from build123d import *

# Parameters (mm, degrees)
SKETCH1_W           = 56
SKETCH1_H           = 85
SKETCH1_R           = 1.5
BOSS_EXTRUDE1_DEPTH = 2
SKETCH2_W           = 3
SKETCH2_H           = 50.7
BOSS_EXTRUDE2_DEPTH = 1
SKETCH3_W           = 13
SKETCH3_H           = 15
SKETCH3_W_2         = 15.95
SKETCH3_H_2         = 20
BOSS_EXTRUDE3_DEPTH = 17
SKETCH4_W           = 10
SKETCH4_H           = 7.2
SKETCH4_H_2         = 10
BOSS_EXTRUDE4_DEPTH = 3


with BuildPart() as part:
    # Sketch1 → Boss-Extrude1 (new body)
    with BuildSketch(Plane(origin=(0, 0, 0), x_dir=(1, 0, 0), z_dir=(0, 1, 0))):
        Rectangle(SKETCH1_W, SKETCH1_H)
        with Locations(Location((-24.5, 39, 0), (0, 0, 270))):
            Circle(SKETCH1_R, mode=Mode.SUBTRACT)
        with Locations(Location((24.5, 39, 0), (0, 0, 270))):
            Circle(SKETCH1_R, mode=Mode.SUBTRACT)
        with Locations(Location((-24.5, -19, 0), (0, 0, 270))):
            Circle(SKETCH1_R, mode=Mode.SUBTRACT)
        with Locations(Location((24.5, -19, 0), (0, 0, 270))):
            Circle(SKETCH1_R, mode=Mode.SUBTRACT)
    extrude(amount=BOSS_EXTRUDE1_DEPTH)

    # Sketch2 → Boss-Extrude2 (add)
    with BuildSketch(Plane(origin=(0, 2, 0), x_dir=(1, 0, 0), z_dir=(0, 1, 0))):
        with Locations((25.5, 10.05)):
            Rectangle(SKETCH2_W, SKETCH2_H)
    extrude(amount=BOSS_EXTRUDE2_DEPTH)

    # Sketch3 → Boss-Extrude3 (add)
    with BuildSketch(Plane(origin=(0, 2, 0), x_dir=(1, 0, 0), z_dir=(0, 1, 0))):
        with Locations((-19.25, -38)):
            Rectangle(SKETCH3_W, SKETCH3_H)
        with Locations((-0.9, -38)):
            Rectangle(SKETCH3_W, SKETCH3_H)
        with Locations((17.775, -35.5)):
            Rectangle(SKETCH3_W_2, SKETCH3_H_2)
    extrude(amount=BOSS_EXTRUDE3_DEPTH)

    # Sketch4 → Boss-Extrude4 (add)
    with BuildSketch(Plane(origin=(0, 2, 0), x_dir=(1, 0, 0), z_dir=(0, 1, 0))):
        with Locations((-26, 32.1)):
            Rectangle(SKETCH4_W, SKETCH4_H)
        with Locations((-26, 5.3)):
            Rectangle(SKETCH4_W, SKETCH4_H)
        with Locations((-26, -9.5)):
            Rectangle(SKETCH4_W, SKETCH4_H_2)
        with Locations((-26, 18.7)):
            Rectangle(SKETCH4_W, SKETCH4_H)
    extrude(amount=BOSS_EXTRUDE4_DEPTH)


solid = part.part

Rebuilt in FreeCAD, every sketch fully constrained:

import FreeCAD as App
import Part
import Sketcher
Q = App.Units.Quantity


def add_polygon(sketch, points):
    """Adds a closed chain of lines whose ends are joined by coincident constraints."""
    first, n = sketch.GeometryCount, len(points)
    for a, b in zip(points, points[1:] + points[:1]):
        sketch.addGeometry(Part.LineSegment(App.Vector(*a, 0), App.Vector(*b, 0)), False)
    for i in range(n):
        sketch.addConstraint(Sketcher.Constraint("Coincident", first + i, 2, first + (i + 1) % n, 1))

doc = App.newDocument("Part")
body = doc.addObject("PartDesign::Body", "Body")

# Sketch on XZ plane
sketch1 = body.newObject("Sketcher::SketchObject", "Sketch")
sketch1.AttachmentSupport = (doc.getObject("XZ_Plane"), [""])
sketch1.MapMode = "FlatFace"
add_polygon(sketch1, [(-28, -42.5), (-28, 42.5), (28, 42.5), (28, -42.5)])  # lines 0-3
sketch1.addGeometry(Part.Circle(App.Vector(-24.5, 19, 0), App.Vector(0, 0, 1), 1.5), False)  # 4
sketch1.addGeometry(Part.Circle(App.Vector(24.5, 19, 0), App.Vector(0, 0, 1), 1.5), False)  # 5
sketch1.addGeometry(Part.Circle(App.Vector(-24.5, -39, 0), App.Vector(0, 0, 1), 1.5), False)  # 6
sketch1.addGeometry(Part.Circle(App.Vector(24.5, -39, 0), App.Vector(0, 0, 1), 1.5), False)  # 7
sketch1.addConstraint([
    Sketcher.Constraint("Vertical", 0),
    Sketcher.Constraint("Horizontal", 1),
    Sketcher.Constraint("Vertical", 2),
    Sketcher.Constraint("Horizontal", 3),
    Sketcher.Constraint("Equal", 4, 5),
    Sketcher.Constraint("Equal", 5, 6),
    Sketcher.Constraint("Equal", 6, 7),
    Sketcher.Constraint("Symmetric", 0, 2, 2, 2, -1, 1),
    Sketcher.Constraint("Symmetric", 4, 3, 5, 3, -2),
    Sketcher.Constraint("Symmetric", 6, 3, 7, 3, -2),
    Sketcher.Constraint("Vertical", 4, 3, 6, 3),
    Sketcher.Constraint("Diameter", 4, Q("3 mm")),
    Sketcher.Constraint("DistanceX", 1, 1, 1, 2, Q("56 mm")),
    Sketcher.Constraint("DistanceY", 0, 1, 0, 2, Q("85 mm")),
    Sketcher.Constraint("DistanceY", -1, 1, 4, 3, Q("19 mm")),
    Sketcher.Constraint("DistanceY", 6, 3, -1, 1, Q("39 mm")),
    Sketcher.Constraint("DistanceX", 4, 3, 5, 3, Q("49 mm")),
])
pad1 = body.newObject("PartDesign::Pad", "Pad")
pad1.Profile = sketch1
pad1.Length = 2
pad1.Reversed = True

# Sketch on XZ plane
sketch2 = body.newObject("Sketcher::SketchObject", "Sketch001")
sketch2.AttachmentSupport = (doc.getObject("XZ_Plane"), [""])
sketch2.MapMode = "FlatFace"
sketch2.AttachmentOffset = App.Placement(App.Vector(0, 0, -2), App.Rotation())
add_polygon(sketch2, [(24, -35.4), (24, 15.3), (27, 15.3), (27, -35.4)])  # lines 0-3
sketch2.addConstraint([
    Sketcher.Constraint("Vertical", 0),
    Sketcher.Constraint("Horizontal", 1),
    Sketcher.Constraint("Vertical", 2),
    Sketcher.Constraint("Horizontal", 3),
    Sketcher.Constraint("DistanceX", 1, 1, 1, 2, Q("3 mm")),
    Sketcher.Constraint("DistanceY", 0, 1, 0, 2, Q("50.7 mm")),
    Sketcher.Constraint("DistanceX", -1, 1, 0, 2, Q("24 mm")),
    Sketcher.Constraint("DistanceY", -1, 1, 0, 2, Q("15.3 mm")),
])
pad2 = body.newObject("PartDesign::Pad", "Pad001")
pad2.Profile = sketch2
pad2.Length = 1
pad2.Reversed = True

# Sketch on XZ plane
sketch3 = body.newObject("Sketcher::SketchObject", "Sketch002")
sketch3.AttachmentSupport = (doc.getObject("XZ_Plane"), [""])
sketch3.MapMode = "FlatFace"
sketch3.AttachmentOffset = App.Placement(App.Vector(0, 0, -2), App.Rotation())
add_polygon(sketch3, [(-26, 30), (-26, 46), (-13, 46), (-13, 30)])  # lines 0-3
add_polygon(sketch3, [(-7, 30), (-7, 46), (6, 46), (6, 30)])  # lines 4-7
add_polygon(sketch3, [(10, 26), (10, 46), (26, 46), (26, 26)])  # lines 8-11
sketch3.addConstraint([
    Sketcher.Constraint("Vertical", 0),
    Sketcher.Constraint("Horizontal", 1),
    Sketcher.Constraint("Vertical", 2),
    Sketcher.Constraint("Horizontal", 3),
    Sketcher.Constraint("Vertical", 4),
    Sketcher.Constraint("Horizontal", 5),
    Sketcher.Constraint("Vertical", 6),
    Sketcher.Constraint("Horizontal", 7),
    Sketcher.Constraint("Vertical", 8),
    Sketcher.Constraint("Horizontal", 9),
    Sketcher.Constraint("Vertical", 10),
    Sketcher.Constraint("Horizontal", 11),
    Sketcher.Constraint("Symmetric", 0, 2, 9, 2, -2),
    Sketcher.Constraint("Horizontal", 1, 2, 4, 2),
    Sketcher.Constraint("Horizontal", 3, 2, 6, 2),
    Sketcher.Constraint("Equal", 3, 5),
    Sketcher.Constraint("DistanceX", 1, 1, 1, 2, Q("13 mm")),
    Sketcher.Constraint("DistanceY", 0, 1, 0, 2, Q("15 mm")),
    Sketcher.Constraint("DistanceY", 8, 1, 8, 2, Q("20 mm")),
    Sketcher.Constraint("DistanceX", 9, 1, 9, 2, Q("15.95 mm")),
    Sketcher.Constraint("DistanceY", -1, 1, 0, 2, Q("45.5 mm")),
    Sketcher.Constraint("DistanceX", 4, 2, -1, 1, Q("7.4 mm")),
    Sketcher.Constraint("DistanceX", -1, 1, 8, 2, Q("9.8 mm")),
])
pad3 = body.newObject("PartDesign::Pad", "Pad002")
pad3.Profile = sketch3
pad3.Length = 17
pad3.Reversed = True

# Sketch on XZ plane
sketch4 = body.newObject("Sketcher::SketchObject", "Sketch003")
sketch4.AttachmentSupport = (doc.getObject("XZ_Plane"), [""])
sketch4.MapMode = "FlatFace"
sketch4.AttachmentOffset = App.Placement(App.Vector(0, 0, -2), App.Rotation())
add_polygon(sketch4, [(-31, -36), (-31, -28), (-21, -28), (-21, -36)])  # lines 0-3
add_polygon(sketch4, [(-31, -9), (-31, -2), (-21, -2), (-21, -9)])  # lines 4-7
add_polygon(sketch4, [(-31, 4), (-31, 14), (-21, 14), (-21, 4)])  # lines 8-11
add_polygon(sketch4, [(-31, -22), (-31, -15), (-21, -15), (-21, -22)])  # lines 12-15
sketch4.addConstraint([
    Sketcher.Constraint("Vertical", 0),
    Sketcher.Constraint("Horizontal", 1),
    Sketcher.Constraint("Vertical", 2),
    Sketcher.Constraint("Horizontal", 3),
    Sketcher.Constraint("Vertical", 4),
    Sketcher.Constraint("Horizontal", 5),
    Sketcher.Constraint("Vertical", 6),
    Sketcher.Constraint("Horizontal", 7),
    Sketcher.Constraint("Vertical", 8),
    Sketcher.Constraint("Horizontal", 9),
    Sketcher.Constraint("Vertical", 10),
    Sketcher.Constraint("Horizontal", 11),
    Sketcher.Constraint("Vertical", 12),
    Sketcher.Constraint("Horizontal", 13),
    Sketcher.Constraint("Vertical", 14),
    Sketcher.Constraint("Horizontal", 15),
    Sketcher.Constraint("Vertical", 3, 2, 4, 2),
    Sketcher.Constraint("Vertical", 2, 2, 5, 2),
    Sketcher.Constraint("Vertical", 7, 2, 8, 2),
    Sketcher.Constraint("Vertical", 6, 2, 9, 2),
    Sketcher.Constraint("Vertical", 11, 2, 12, 2),
    Sketcher.Constraint("Vertical", 10, 2, 13, 2),
    Sketcher.Constraint("Equal", 2, 4),
    Sketcher.Constraint("Equal", 15, 8),
    Sketcher.Constraint("Equal", 6, 12),
    Sketcher.Constraint("DistanceX", 1, 1, 1, 2, Q("10 mm")),
    Sketcher.Constraint("DistanceY", 0, 1, 0, 2, Q("7.2 mm")),
    Sketcher.Constraint("DistanceX", 0, 2, -1, 1, Q("31 mm")),
    Sketcher.Constraint("DistanceY", 3, 2, 4, 2, Q("34 mm")),
    Sketcher.Constraint("DistanceY", 0, 2, 8, 2, Q("43 mm")),
    Sketcher.Constraint("DistanceY", 0, 2, -1, 1, Q("28.5 mm")),
    Sketcher.Constraint("DistanceY", 12, 2, -1, 1, Q("15.1 mm")),
])
pad4 = body.newObject("PartDesign::Pad", "Pad003")
pad4.Profile = sketch4
pad4.Length = 3
pad4.Reversed = True

doc.recompute()
